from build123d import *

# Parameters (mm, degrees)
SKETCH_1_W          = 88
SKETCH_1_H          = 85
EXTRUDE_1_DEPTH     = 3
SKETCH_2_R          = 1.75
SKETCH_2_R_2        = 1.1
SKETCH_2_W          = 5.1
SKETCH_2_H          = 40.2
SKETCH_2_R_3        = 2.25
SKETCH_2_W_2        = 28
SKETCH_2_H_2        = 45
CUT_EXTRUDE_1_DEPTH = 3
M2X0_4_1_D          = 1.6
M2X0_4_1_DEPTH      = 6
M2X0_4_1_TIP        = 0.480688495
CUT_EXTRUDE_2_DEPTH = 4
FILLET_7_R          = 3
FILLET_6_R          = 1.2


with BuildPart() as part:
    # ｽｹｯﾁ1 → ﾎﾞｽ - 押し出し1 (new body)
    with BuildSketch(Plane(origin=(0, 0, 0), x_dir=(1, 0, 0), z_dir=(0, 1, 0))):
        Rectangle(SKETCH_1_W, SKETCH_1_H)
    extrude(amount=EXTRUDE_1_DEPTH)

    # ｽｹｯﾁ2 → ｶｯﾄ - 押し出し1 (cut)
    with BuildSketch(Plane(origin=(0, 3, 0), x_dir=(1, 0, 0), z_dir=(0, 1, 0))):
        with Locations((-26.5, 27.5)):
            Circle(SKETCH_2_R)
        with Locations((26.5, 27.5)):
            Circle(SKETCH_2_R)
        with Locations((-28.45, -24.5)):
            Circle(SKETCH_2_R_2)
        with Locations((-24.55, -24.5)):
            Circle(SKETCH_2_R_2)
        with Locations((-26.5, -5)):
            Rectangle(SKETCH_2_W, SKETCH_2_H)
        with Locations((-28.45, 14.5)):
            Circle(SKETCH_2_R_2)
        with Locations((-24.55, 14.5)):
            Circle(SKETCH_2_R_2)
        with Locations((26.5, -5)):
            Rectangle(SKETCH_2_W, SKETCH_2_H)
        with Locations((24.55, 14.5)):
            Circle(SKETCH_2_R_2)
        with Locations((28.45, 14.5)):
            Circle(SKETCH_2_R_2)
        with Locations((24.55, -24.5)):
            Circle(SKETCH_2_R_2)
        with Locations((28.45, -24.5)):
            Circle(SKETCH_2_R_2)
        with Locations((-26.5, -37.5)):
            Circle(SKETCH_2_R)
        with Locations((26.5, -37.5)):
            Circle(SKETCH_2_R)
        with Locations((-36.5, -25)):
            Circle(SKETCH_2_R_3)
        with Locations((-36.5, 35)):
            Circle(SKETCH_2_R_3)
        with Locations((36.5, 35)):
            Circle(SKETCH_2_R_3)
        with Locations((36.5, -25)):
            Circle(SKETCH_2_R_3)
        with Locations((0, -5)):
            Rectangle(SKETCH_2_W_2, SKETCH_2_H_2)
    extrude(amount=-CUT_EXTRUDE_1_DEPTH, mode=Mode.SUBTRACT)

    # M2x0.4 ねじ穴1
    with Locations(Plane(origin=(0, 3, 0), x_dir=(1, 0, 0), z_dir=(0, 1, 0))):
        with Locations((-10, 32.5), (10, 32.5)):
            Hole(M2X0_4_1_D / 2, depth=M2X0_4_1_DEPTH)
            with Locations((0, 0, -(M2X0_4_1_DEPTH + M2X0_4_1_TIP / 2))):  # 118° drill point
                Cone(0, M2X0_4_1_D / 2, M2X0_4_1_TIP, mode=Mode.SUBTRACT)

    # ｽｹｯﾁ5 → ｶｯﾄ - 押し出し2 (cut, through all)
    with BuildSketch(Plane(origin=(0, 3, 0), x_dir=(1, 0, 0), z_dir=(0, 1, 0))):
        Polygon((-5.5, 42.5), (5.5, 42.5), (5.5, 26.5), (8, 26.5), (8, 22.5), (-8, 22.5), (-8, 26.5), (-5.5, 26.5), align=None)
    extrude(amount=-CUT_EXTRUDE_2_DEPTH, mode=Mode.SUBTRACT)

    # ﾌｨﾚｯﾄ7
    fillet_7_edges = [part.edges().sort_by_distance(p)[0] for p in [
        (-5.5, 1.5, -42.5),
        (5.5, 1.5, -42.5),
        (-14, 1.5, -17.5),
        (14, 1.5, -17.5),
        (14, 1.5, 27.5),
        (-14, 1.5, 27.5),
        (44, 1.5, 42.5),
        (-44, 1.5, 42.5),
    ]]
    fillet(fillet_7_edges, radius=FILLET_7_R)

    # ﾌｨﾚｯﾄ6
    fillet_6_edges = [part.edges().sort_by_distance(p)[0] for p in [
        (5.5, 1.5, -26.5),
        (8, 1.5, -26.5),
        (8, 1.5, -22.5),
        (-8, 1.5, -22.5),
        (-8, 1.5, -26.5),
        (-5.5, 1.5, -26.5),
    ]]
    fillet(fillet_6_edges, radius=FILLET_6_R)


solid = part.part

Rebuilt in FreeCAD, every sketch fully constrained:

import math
import FreeCAD as App
import Part
import Sketcher
from FreeCAD import Vector
Q = App.Units.Quantity


def edges_at(feature, points):
    """Names of the edges that pass closest to the given points."""
    edges = feature.Shape.Edges
    near = lambda p: min(range(len(edges)), key=lambda i: edges[i].distToShape(Part.Vertex(*p))[0])
    return sorted({f"Edge{near(p) + 1}" for p in points})

doc = App.newDocument("Part")
body = doc.addObject("PartDesign::Body", "Body")

# Sketch on XZ plane
sketch1 = doc.addObject("Sketcher::SketchObject", "Sketch")
body.addObject(sketch1)
sketch1.AttachmentSupport = (doc.XZ_Plane, [""])
sketch1.MapMode = "FlatFace"
sketch1.addGeometry([
    Part.LineSegment(Vector(-44, -42, 0), Vector(-44, 42, 0)),
    Part.LineSegment(Vector(-44, 42, 0), Vector(44, 42, 0)),
    Part.LineSegment(Vector(44, 42, 0), Vector(44, -42, 0)),
    Part.LineSegment(Vector(44, -42, 0), Vector(-44, -42, 0)),
], False)
sketch1.addConstraint([
    Sketcher.Constraint("Coincident", 0, 2, 1, 1),
    Sketcher.Constraint("Coincident", 1, 2, 2, 1),
    Sketcher.Constraint("Coincident", 2, 2, 3, 1),
    Sketcher.Constraint("Coincident", 3, 2, 0, 1),
    Sketcher.Constraint("Vertical", 0),
    Sketcher.Constraint("Horizontal", 1),
    Sketcher.Constraint("Vertical", 2),
    Sketcher.Constraint("Horizontal", 3),
    Sketcher.Constraint("Symmetric", 0, 2, 2, 2, -1, 1),
    Sketcher.Constraint("DistanceX", 1, 1, 1, 2, Q("88 mm")),
    Sketcher.Constraint("DistanceY", 0, 1, 0, 2, Q("85 mm")),
])
pad1 = doc.addObject("PartDesign::Pad", "Pad")
body.addObject(pad1)
pad1.Profile = sketch1
pad1.Length = 3
pad1.Reversed = True

# Sketch on XZ plane
sketch2 = doc.addObject("Sketcher::SketchObject", "Sketch001")
body.addObject(sketch2)
sketch2.AttachmentSupport = (doc.XZ_Plane, [""])
sketch2.MapMode = "FlatFace"
sketch2.AttachmentOffset = App.Placement(Vector(0, 0, -3), App.Rotation())
sketch2.addGeometry([
    Part.Circle(Vector(-26.5, -27.5, 0), Vector(0, 0, 1), 1.8),  # 0
    Part.Circle(Vector(26.5, -27.5, 0), Vector(0, 0, 1), 1.8),  # 1
    Part.LineSegment(Vector(-29.1, -13.6, 0), Vector(-29.1, 23.6, 0)),  # 2
    Part.ArcOfCircle(Part.Circle(Vector(-28.4, 24.5, 0), Vector(0, 0, 1), 1.1), math.radians(33), math.radians(237)),  # 3
    Part.LineSegment(Vector(-27.5, 25.1, 0), Vector(-25.5, 25.1, 0)),  # 4
    Part.ArcOfCircle(Part.Circle(Vector(-24.6, 24.5, 0), Vector(0, 0, 1), 1.1), math.radians(-57), math.radians(147)),  # 5
    Part.LineSegment(Vector(-23.9, 23.6, 0), Vector(-23.9, -13.6, 0)),  # 6
    Part.ArcOfCircle(Part.Circle(Vector(-24.6, -14.5, 0), Vector(0, 0, 1), 1.1), math.radians(-147), math.radians(57)),  # 7
    Part.LineSegment(Vector(-25.5, -15.1, 0), Vector(-27.5, -15.1, 0)),  # 8
    Part.ArcOfCircle(Part.Circle(Vector(-28.4, -14.5, 0), Vector(0, 0, 1), 1.1), math.radians(123), math.radians(327)),  # 9
    Part.LineSegment(Vector(23.9, -13.6, 0), Vector(23.9, 23.6, 0)),  # 10
    Part.ArcOfCircle(Part.Circle(Vector(24.6, 24.5, 0), Vector(0, 0, 1), 1.1), math.radians(33), math.radians(237)),  # 11
    Part.LineSegment(Vector(25.5, 25.1, 0), Vector(27.5, 25.1, 0)),  # 12
    Part.ArcOfCircle(Part.Circle(Vector(28.4, 24.5, 0), Vector(0, 0, 1), 1.1), math.radians(-57), math.radians(147)),  # 13
    Part.LineSegment(Vector(29.1, 23.6, 0), Vector(29.1, -13.6, 0)),  # 14
    Part.ArcOfCircle(Part.Circle(Vector(28.4, -14.5, 0), Vector(0, 0, 1), 1.1), math.radians(-147), math.radians(57)),  # 15
    Part.LineSegment(Vector(27.5, -15.1, 0), Vector(25.5, -15.1, 0)),  # 16
    Part.ArcOfCircle(Part.Circle(Vector(24.6, -14.5, 0), Vector(0, 0, 1), 1.1), math.radians(123), math.radians(327)),  # 17
    Part.Circle(Vector(-26.5, 37.5, 0), Vector(0, 0, 1), 1.8),  # 18
    Part.Circle(Vector(26.5, 37.5, 0), Vector(0, 0, 1), 1.8),  # 19
    Part.Circle(Vector(-36.5, 25, 0), Vector(0, 0, 1), 2.2),  # 20
    Part.Circle(Vector(-36.5, -35, 0), Vector(0, 0, 1), 2.2),  # 21
    Part.Circle(Vector(36.5, -35, 0), Vector(0, 0, 1), 2.2),  # 22
    Part.Circle(Vector(36.5, 25, 0), Vector(0, 0, 1), 2.2),  # 23
    Part.LineSegment(Vector(-14, -17.5, 0), Vector(-14, 27.5, 0)),  # 24
    Part.LineSegment(Vector(-14, 27.5, 0), Vector(14, 27.5, 0)),  # 25
    Part.LineSegment(Vector(14, 27.5, 0), Vector(14, -17.5, 0)),  # 26
    Part.LineSegment(Vector(14, -17.5, 0), Vector(-14, -17.5, 0)),  # 27
], False)
sketch2.addConstraint([
    Sketcher.Constraint("Coincident", 2, 2, 3, 2),
    Sketcher.Constraint("Coincident", 3, 1, 4, 1),
    Sketcher.Constraint("Coincident", 4, 2, 5, 2),
    Sketcher.Constraint("Coincident", 5, 1, 6, 1),
    Sketcher.Constraint("Coincident", 6, 2, 7, 2),
    Sketcher.Constraint("Coincident", 7, 1, 8, 1),
    Sketcher.Constraint("Coincident", 8, 2, 9, 2),
    Sketcher.Constraint("Coincident", 9, 1, 2, 1),
    Sketcher.Constraint("Coincident", 10, 2, 11, 2),
    Sketcher.Constraint("Coincident", 11, 1, 12, 1),
    Sketcher.Constraint("Coincident", 12, 2, 13, 2),
    Sketcher.Constraint("Coincident", 13, 1, 14, 1),
    Sketcher.Constraint("Coincident", 14, 2, 15, 2),
    Sketcher.Constraint("Coincident", 15, 1, 16, 1),
    Sketcher.Constraint("Coincident", 16, 2, 17, 2),
    Sketcher.Constraint("Coincident", 17, 1, 10, 1),
    Sketcher.Constraint("Coincident", 24, 2, 25, 1),
    Sketcher.Constraint("Coincident", 25, 2, 26, 1),
    Sketcher.Constraint("Coincident", 26, 2, 27, 1),
    Sketcher.Constraint("Coincident", 27, 2, 24, 1),
    Sketcher.Constraint("Vertical", 2),
    Sketcher.Constraint("Horizontal", 4),
    Sketcher.Constraint("Vertical", 6),
    Sketcher.Constraint("Horizontal", 8),
    Sketcher.Constraint("Vertical", 10),
    Sketcher.Constraint("Horizontal", 12),
    Sketcher.Constraint("Vertical", 14),
    Sketcher.Constraint("Horizontal", 16),
    Sketcher.Constraint("Vertical", 24),
    Sketcher.Constraint("Horizontal", 25),
    Sketcher.Constraint("Vertical", 26),
    Sketcher.Constraint("Horizontal", 27),
    Sketcher.Constraint("Equal", 0, 1),
    Sketcher.Constraint("Equal", 3, 5),
    Sketcher.Constraint("Equal", 5, 7),
    Sketcher.Constraint("Equal", 7, 9),
    Sketcher.Constraint("Equal", 9, 11),
    Sketcher.Constraint("Equal", 11, 13),
    Sketcher.Constraint("Equal", 13, 15),
    Sketcher.Constraint("Equal", 15, 17),
    Sketcher.Constraint("Equal", 1, 18),
    Sketcher.Constraint("Equal", 18, 19),
    Sketcher.Constraint("Equal", 20, 21),
    Sketcher.Constraint("Equal", 21, 22),
    Sketcher.Constraint("Equal", 22, 23),
    Sketcher.Constraint("Symmetric", 0, 3, 1, 3, -2),
    Sketcher.Constraint("Symmetric", 5, 3, 11, 3, -2),
    Sketcher.Constraint("Symmetric", 3, 3, 13, 3, -2),
    Sketcher.Constraint("Symmetric", 9, 3, 15, 3, -2),
    Sketcher.Constraint("Symmetric", 7, 3, 17, 3, -2),
    Sketcher.Constraint("Symmetric", 18, 3, 19, 3, -2),
    Sketcher.Constraint("Symmetric", 21, 3, 22, 3, -2),
    Sketcher.Constraint("Symmetric", 20, 3, 23, 3, -2),
    Sketcher.Constraint("Horizontal", 3, 3, 5, 3),
    Sketcher.Constraint("Horizontal", 7, 3, 9, 3),
    Sketcher.Constraint("Horizontal", 2, 2, 5, 1),
    Sketcher.Constraint("Horizontal", 6, 2, 9, 1),
    Sketcher.Constraint("Horizontal", 5, 1, 10, 2),
    Sketcher.Constraint("Horizontal", 4, 2, 11, 1),
    Sketcher.Constraint("Horizontal", 10, 2, 13, 1),
    Sketcher.Constraint("Horizontal", 8, 2, 15, 1),
    Sketcher.Constraint("Vertical", 5, 3, 7, 3),
    Sketcher.Constraint("Vertical", 0, 3, 18, 3),
    Sketcher.Constraint("Vertical", 20, 3, 21, 3),
    Sketcher.Constraint("Vertical", 4, 2, 7, 1),
    Sketcher.Constraint("Diameter", 0, Q("3.5 mm")),
    Sketcher.Constraint("Diameter", 20, Q("4.5 mm")),
    Sketcher.Constraint("Radius", 3, Q("1.1 mm")),
    Sketcher.Constraint("DistanceX", 25, 1, 25, 2, Q("28 mm")),
    Sketcher.Constraint("DistanceY", 24, 1, 24, 2, Q("45 mm")),
    Sketcher.Constraint("DistanceY", -1, 1, 20, 3, Q("25 mm")),
    Sketcher.Constraint("DistanceY", 21, 3, -1, 1, Q("35 mm")),
    Sketcher.Constraint("DistanceX", 24, 2, -1, 1, Q("14 mm")),
    Sketcher.Constraint("DistanceX", 0, 3, 1, 3, Q("53 mm")),
    Sketcher.Constraint("DistanceY", 0, 3, 3, 3, Q("52 mm")),
    Sketcher.Constraint("DistanceY", 0, 3, 7, 3, Q("13 mm")),
    Sketcher.Constraint("DistanceX", 3, 3, 11, 3, Q("53 mm")),
    Sketcher.Constraint("DistanceY", 3, 3, 18, 3, Q("13 mm")),
    Sketcher.Constraint("DistanceX", 20, 3, 18, 3, Q("10 mm")),
    Sketcher.Constraint("DistanceY", 5, 3, 24, 2, Q("3 mm")),
    Sketcher.Constraint("DistanceY", 0, 3, -1, 1, Q("27.5 mm")),
    Sketcher.Constraint("DistanceY", -1, 1, 3, 1, Q("25.1 mm")),
    Sketcher.Constraint("DistanceX", 3, 3, 5, 3, Q("3.9 mm")),
    Sketcher.Constraint("DistanceX", 2, 2, 3, 3, Q("0.6 mm")),
])
pocket1 = doc.addObject("PartDesign::Pocket", "Pocket")
body.addObject(pocket1)
pocket1.Profile = sketch2
pocket1.Length = 3
pocket1.Reversed = True

# Sketch on XZ plane
sketch3 = doc.addObject("Sketcher::SketchObject", "Sketch002")
body.addObject(sketch3)
sketch3.AttachmentSupport = (doc.XZ_Plane, [""])
sketch3.MapMode = "FlatFace"
sketch3.AttachmentOffset = App.Placement(Vector(0, 0, -3), App.Rotation())
sketch3.addGeometry([
    Part.Circle(Vector(-10, -32.5, 0), Vector(0, 0, 1), 0.8),
    Part.Circle(Vector(10, -32.5, 0), Vector(0, 0, 1), 0.8),
], False)
sketch3.addConstraint([
    Sketcher.Constraint("Equal", 0, 1),
    Sketcher.Constraint("Symmetric", 0, 3, 1, 3, -2),
    Sketcher.Constraint("Diameter", 0, Q("1.6 mm")),
    Sketcher.Constraint("DistanceX", 0, 3, -1, 1, Q("10 mm")),
    Sketcher.Constraint("DistanceY", 0, 3, -1, 1, Q("32.5 mm")),
])
doc.recompute()
hole = doc.addObject("PartDesign::Hole", "Hole")
body.addObject(hole)
hole.Profile = sketch3
hole.ThreadType = "None"
hole.Diameter = 1.6
hole.DepthType = "Dimension"
hole.Depth = 6
hole.DrillPoint = "Angled"
hole.DrillPointAngle = 118
hole.Reversed = True

# Sketch on XZ plane
sketch4 = doc.addObject("Sketcher::SketchObject", "Sketch003")
body.addObject(sketch4)
sketch4.AttachmentSupport = (doc.XZ_Plane, [""])
sketch4.MapMode = "FlatFace"
sketch4.AttachmentOffset = App.Placement(Vector(0, 0, -3), App.Rotation())
sketch4.addGeometry([
    Part.LineSegment(Vector(5.5, -42.5, 0), Vector(-5.5, -42.5, 0)),  # 0
    Part.LineSegment(Vector(-5.5, -42.5, 0), Vector(-5.5, -26.5, 0)),  # 1
    Part.LineSegment(Vector(-5.5, -26.5, 0), Vector(-8, -26.5, 0)),  # 2
    Part.LineSegment(Vector(-8, -26.5, 0), Vector(-8, -22.5, 0)),  # 3
    Part.LineSegment(Vector(-8, -22.5, 0), Vector(8, -22.5, 0)),  # 4
    Part.LineSegment(Vector(8, -22.5, 0), Vector(8, -26.5, 0)),  # 5
    Part.LineSegment(Vector(8, -26.5, 0), Vector(5.5, -26.5, 0)),  # 6
    Part.LineSegment(Vector(5.5, -26.5, 0), Vector(5.5, -42.5, 0)),  # 7
], False)
sketch4.addConstraint([
    Sketcher.Constraint("Coincident", 0, 2, 1, 1),
    Sketcher.Constraint("Coincident", 1, 2, 2, 1),
    Sketcher.Constraint("Coincident", 2, 2, 3, 1),
    Sketcher.Constraint("Coincident", 3, 2, 4, 1),
    Sketcher.Constraint("Coincident", 4, 2, 5, 1),
    Sketcher.Constraint("Coincident", 5, 2, 6, 1),
    Sketcher.Constraint("Coincident", 6, 2, 7, 1),
    Sketcher.Constraint("Coincident", 7, 2, 0, 1),
    Sketcher.Constraint("Horizontal", 0),
    Sketcher.Constraint("Vertical", 1),
    Sketcher.Constraint("Horizontal", 2),
    Sketcher.Constraint("Vertical", 3),
    Sketcher.Constraint("Horizontal", 4),
    Sketcher.Constraint("Vertical", 5),
    Sketcher.Constraint("Horizontal", 6),
    Sketcher.Constraint("Vertical", 7),
    Sketcher.Constraint("Symmetric", 2, 2, 5, 2, -2),
    Sketcher.Constraint("Equal", 2, 6),
    Sketcher.Constraint("Equal", 4, 1),
    Sketcher.Constraint("DistanceX", 0, 2, 0, 1, Q("11 mm")),
    Sketcher.Constraint("DistanceX", 4, 1, 4, 2, Q("16 mm")),
    Sketcher.Constraint("DistanceY", 3, 1, 3, 2, Q("4 mm")),
    Sketcher.Constraint("DistanceY", 0, 2, -1, 1, Q("42.5 mm")),
])
pocket2 = doc.addObject("PartDesign::Pocket", "Pocket001")
body.addObject(pocket2)
pocket2.Profile = sketch4
pocket2.Type = "ThroughAll"
pocket2.Reversed = True
doc.recompute()

fillet = doc.addObject("PartDesign::Fillet", "Fillet")
body.addObject(fillet)
fillet.Base = (pocket2, edges_at(pocket2, [
    (-5.5, 1.5, -42.5),
    (5.5, 1.5, -42.5),
    (-14, 1.5, -17.5),
    (14, 1.5, -17.5),
    (14, 1.5, 27.5),
    (-14, 1.5, 27.5),
    (44, 1.5, 42.5),
    (-44, 1.5, 42.5),
]))
fillet.Radius = 3
doc.recompute()

fillet2 = doc.addObject("PartDesign::Fillet", "Fillet001")
body.addObject(fillet2)
fillet2.Base = (fillet, edges_at(fillet, [
    (5.5, 1.5, -26.5),
    (8, 1.5, -26.5),
    (8, 1.5, -22.5),
    (-8, 1.5, -22.5),
    (-8, 1.5, -26.5),
    (-5.5, 1.5, -26.5),
]))
fillet2.Radius = 1.2

doc.recompute()
